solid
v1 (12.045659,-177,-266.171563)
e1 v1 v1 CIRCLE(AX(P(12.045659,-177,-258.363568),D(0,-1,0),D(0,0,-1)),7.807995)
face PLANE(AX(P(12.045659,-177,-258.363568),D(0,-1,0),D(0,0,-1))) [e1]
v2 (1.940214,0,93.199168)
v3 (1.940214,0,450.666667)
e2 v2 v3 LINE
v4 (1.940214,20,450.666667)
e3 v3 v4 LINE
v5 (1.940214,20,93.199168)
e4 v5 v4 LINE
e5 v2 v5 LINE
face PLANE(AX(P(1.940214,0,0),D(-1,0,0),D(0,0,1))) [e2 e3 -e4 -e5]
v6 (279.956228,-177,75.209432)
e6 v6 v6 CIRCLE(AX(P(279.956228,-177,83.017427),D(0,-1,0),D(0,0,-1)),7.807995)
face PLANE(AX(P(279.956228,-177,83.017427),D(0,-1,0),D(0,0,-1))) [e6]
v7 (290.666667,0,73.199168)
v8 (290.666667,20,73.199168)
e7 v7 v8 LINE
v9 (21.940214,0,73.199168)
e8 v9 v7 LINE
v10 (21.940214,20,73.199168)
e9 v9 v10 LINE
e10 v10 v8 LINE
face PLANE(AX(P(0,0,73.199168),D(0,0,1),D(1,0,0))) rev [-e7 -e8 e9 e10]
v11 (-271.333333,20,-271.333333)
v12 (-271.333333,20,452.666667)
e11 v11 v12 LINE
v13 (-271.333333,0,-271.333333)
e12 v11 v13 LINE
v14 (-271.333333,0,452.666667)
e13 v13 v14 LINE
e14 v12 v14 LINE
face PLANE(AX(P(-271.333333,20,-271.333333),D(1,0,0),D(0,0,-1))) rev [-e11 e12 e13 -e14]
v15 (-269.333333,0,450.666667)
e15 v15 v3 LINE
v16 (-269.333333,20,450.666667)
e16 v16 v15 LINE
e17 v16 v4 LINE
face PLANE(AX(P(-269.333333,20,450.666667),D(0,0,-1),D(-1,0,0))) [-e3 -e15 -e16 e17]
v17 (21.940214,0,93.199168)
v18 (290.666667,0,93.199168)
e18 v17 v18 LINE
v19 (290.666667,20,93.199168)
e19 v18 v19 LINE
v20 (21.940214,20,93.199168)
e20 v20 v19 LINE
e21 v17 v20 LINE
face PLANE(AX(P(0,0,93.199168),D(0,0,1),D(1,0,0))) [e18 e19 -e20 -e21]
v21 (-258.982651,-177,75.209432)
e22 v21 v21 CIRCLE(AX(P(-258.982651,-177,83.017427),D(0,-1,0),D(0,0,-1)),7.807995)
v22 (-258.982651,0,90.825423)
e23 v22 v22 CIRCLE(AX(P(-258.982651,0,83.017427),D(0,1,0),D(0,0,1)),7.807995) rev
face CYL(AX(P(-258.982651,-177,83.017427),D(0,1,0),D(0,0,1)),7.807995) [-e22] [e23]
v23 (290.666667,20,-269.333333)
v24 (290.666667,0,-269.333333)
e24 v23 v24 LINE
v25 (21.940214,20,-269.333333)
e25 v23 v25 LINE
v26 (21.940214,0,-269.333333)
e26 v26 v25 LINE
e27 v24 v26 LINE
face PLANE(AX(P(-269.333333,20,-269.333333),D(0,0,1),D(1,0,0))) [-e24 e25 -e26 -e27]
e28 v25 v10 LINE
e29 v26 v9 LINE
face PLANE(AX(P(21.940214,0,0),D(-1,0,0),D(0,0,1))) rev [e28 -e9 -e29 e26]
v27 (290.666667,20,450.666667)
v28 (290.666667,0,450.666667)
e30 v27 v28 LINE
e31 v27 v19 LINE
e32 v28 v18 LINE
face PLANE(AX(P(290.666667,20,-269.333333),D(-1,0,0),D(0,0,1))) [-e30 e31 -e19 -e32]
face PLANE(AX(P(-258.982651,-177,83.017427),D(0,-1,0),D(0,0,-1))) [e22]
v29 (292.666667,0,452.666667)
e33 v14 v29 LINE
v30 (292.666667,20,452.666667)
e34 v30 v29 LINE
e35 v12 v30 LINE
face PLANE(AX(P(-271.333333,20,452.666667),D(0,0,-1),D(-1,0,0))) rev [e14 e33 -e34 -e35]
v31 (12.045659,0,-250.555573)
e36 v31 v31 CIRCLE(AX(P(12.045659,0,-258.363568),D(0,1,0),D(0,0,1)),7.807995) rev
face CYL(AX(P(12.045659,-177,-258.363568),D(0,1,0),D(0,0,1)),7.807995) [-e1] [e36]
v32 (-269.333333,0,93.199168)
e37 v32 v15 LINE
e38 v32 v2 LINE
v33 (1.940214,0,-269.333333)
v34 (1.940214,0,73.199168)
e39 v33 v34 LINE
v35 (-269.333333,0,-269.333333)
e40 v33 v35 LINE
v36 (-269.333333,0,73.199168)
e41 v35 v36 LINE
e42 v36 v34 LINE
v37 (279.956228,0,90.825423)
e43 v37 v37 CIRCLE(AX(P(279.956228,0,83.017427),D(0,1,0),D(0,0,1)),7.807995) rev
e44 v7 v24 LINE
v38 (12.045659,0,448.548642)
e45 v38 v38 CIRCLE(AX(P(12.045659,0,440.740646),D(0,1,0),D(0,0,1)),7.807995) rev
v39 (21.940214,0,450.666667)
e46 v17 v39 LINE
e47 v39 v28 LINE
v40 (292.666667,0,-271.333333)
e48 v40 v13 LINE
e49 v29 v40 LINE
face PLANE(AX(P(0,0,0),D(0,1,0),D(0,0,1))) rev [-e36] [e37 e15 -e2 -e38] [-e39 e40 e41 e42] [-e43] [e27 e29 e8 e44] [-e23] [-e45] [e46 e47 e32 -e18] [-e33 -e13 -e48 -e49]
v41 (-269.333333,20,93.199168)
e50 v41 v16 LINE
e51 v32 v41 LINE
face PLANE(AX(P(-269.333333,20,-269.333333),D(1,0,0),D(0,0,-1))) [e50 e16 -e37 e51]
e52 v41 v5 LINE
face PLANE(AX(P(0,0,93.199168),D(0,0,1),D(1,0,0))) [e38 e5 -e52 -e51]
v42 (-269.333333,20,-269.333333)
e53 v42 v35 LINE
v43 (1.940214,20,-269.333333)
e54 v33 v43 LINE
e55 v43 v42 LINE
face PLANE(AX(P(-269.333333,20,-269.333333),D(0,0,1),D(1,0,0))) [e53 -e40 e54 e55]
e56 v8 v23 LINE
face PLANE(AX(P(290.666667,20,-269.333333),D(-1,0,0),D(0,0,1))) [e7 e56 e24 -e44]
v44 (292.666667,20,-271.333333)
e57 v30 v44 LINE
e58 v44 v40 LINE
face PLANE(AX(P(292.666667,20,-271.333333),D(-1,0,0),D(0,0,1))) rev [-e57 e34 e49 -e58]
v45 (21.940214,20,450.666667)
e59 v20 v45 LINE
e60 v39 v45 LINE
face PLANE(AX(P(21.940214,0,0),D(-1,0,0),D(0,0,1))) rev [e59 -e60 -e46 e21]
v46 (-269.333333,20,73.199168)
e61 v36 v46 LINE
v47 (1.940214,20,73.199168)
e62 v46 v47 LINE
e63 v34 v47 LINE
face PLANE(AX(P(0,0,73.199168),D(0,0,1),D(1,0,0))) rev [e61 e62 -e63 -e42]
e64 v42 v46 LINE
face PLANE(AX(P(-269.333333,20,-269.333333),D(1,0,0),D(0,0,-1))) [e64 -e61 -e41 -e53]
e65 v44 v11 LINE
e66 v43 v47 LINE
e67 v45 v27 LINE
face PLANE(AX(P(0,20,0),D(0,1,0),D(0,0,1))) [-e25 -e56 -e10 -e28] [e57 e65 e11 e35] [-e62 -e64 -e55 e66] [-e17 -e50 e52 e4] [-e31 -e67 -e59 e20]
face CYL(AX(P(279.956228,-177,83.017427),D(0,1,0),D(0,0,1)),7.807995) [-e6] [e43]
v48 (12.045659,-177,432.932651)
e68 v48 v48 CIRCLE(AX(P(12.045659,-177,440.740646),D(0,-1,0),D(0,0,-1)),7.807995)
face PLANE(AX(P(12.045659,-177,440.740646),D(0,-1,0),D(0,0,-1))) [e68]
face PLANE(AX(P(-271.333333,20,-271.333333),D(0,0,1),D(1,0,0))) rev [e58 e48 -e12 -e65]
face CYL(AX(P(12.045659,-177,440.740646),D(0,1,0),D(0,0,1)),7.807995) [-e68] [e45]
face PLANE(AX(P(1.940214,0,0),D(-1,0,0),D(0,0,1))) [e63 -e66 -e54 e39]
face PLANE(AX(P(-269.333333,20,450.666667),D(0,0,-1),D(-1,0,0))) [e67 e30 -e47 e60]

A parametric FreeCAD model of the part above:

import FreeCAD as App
import Part
import Sketcher
from FreeCAD import Vector
Q = App.Units.Quantity

doc = App.newDocument("Part")
params = doc.addObject("Spreadsheet::Sheet", "Params")
for row, (alias, value) in enumerate([
    ("sketch1_width", "564 mm"),
    ("sketch1_width2", "560 mm"),
    ("sketch1_height", "724 mm"),
    ("sketch1_height2", "720 mm"),
    ("pad1_length", "20 mm"),
    ("sketch2_width", "20 mm"),
    ("pad2_length", "20 mm"),
    ("pad3_length", "177 mm"),
], start=1):
    params.set(f"A{row}", alias)
    params.set(f"B{row}", "=" + value)
    params.setAlias(f"B{row}", alias)

body = doc.addObject("PartDesign::Body", "Body")

# Sketch on XZ plane
sketch1 = body.newObject("Sketcher::SketchObject", "Sketch")
sketch1.AttachmentSupport = (doc.getObject("XZ_Plane"), [""])
sketch1.MapMode = "FlatFace"
sketch1.addGeometry(Part.LineSegment(Vector(-271, -271, 0), Vector(-271, 453, 0)), False)
sketch1.addGeometry(Part.LineSegment(Vector(-271, 453, 0), Vector(293, 453, 0)), False)
sketch1.addGeometry(Part.LineSegment(Vector(293, 453, 0), Vector(293, -271, 0)), False)
sketch1.addGeometry(Part.LineSegment(Vector(293, -271, 0), Vector(-271, -271, 0)), False)
sketch1.addGeometry(Part.LineSegment(Vector(291, 451, 0), Vector(-269, 451, 0)), False)
sketch1.addGeometry(Part.LineSegment(Vector(-269, 451, 0), Vector(-269, -269, 0)), False)
sketch1.addGeometry(Part.LineSegment(Vector(-269, -269, 0), Vector(291, -269, 0)), False)
sketch1.addGeometry(Part.LineSegment(Vector(291, -269, 0), Vector(291, 451, 0)), False)
sketch1.addConstraint(Sketcher.Constraint("Coincident", 0, 2, 1, 1))
sketch1.addConstraint(Sketcher.Constraint("Coincident", 1, 2, 2, 1))
sketch1.addConstraint(Sketcher.Constraint("Coincident", 2, 2, 3, 1))
sketch1.addConstraint(Sketcher.Constraint("Coincident", 3, 2, 0, 1))
sketch1.addConstraint(Sketcher.Constraint("Coincident", 4, 2, 5, 1))
sketch1.addConstraint(Sketcher.Constraint("Coincident", 5, 2, 6, 1))
sketch1.addConstraint(Sketcher.Constraint("Coincident", 6, 2, 7, 1))
sketch1.addConstraint(Sketcher.Constraint("Coincident", 7, 2, 4, 1))
sketch1.addConstraint(Sketcher.Constraint("Vertical", 0))
sketch1.addConstraint(Sketcher.Constraint("Horizontal", 1))
sketch1.addConstraint(Sketcher.Constraint("Vertical", 2))
sketch1.addConstraint(Sketcher.Constraint("Horizontal", 3))
sketch1.addConstraint(Sketcher.Constraint("Horizontal", 4))
sketch1.addConstraint(Sketcher.Constraint("Vertical", 5))
sketch1.addConstraint(Sketcher.Constraint("Horizontal", 6))
sketch1.addConstraint(Sketcher.Constraint("Vertical", 7))
sketch1.addConstraint(Sketcher.Constraint("DistanceX", 1, 1, 1, 2, Q("564 mm")))
sketch1.addConstraint(Sketcher.Constraint("DistanceX", 4, 2, 4, 1, Q("560 mm")))
sketch1.addConstraint(Sketcher.Constraint("DistanceY", 0, 1, 0, 2, Q("724 mm")))
sketch1.addConstraint(Sketcher.Constraint("DistanceY", 5, 2, 5, 1, Q("720 mm")))
sketch1.addConstraint(Sketcher.Constraint("DistanceX", 0, 2, 4, 2, Q("2 mm")))
sketch1.addConstraint(Sketcher.Constraint("DistanceY", 4, 2, 0, 2, Q("2 mm")))
sketch1.addConstraint(Sketcher.Constraint("DistanceX", 0, 2, -1, 1, Q("271.333333 mm")))
sketch1.addConstraint(Sketcher.Constraint("DistanceY", -1, 1, 0, 2, Q("452.666667 mm")))
sketch1.setExpression("Constraints[16]", "Params.sketch1_width")
sketch1.setExpression("Constraints[17]", "Params.sketch1_width2")
sketch1.setExpression("Constraints[18]", "Params.sketch1_height")
sketch1.setExpression("Constraints[19]", "Params.sketch1_height2")
pad1 = body.newObject("PartDesign::Pad", "Pad")
pad1.Profile = sketch1
pad1.setExpression("Length", "Params.pad1_length")
pad1.Reversed = True

# Sketch on XZ plane
sketch2 = body.newObject("Sketcher::SketchObject", "Sketch001")
sketch2.AttachmentSupport = (doc.getObject("XZ_Plane"), [""])
sketch2.MapMode = "FlatFace"
sketch2.AttachmentOffset = App.Placement(Vector(0, 0, -20), App.Rotation())
sketch2.addGeometry(Part.LineSegment(Vector(2, 93, 0), Vector(2, 451, 0)), False)
sketch2.addGeometry(Part.LineSegment(Vector(2, 451, 0), Vector(22, 451, 0)), False)
sketch2.addGeometry(Part.LineSegment(Vector(22, 451, 0), Vector(22, 93, 0)), False)
sketch2.addGeometry(Part.LineSegment(Vector(22, 93, 0), Vector(291, 93, 0)), False)
sketch2.addGeometry(Part.LineSegment(Vector(291, 93, 0), Vector(291, 73, 0)), False)
sketch2.addGeometry(Part.LineSegment(Vector(291, 73, 0), Vector(22, 73, 0)), False)
sketch2.addGeometry(Part.LineSegment(Vector(22, 73, 0), Vector(22, -269, 0)), False)
sketch2.addGeometry(Part.LineSegment(Vector(22, -269, 0), Vector(2, -269, 0)), False)
sketch2.addGeometry(Part.LineSegment(Vector(2, -269, 0), Vector(2, 73, 0)), False)
sketch2.addGeometry(Part.LineSegment(Vector(2, 73, 0), Vector(-269, 73, 0)), False)
sketch2.addGeometry(Part.LineSegment(Vector(-269, 73, 0), Vector(-269, 93, 0)), False)
sketch2.addGeometry(Part.LineSegment(Vector(-269, 93, 0), Vector(2, 93, 0)), False)
sketch2.addConstraint(Sketcher.Constraint("Coincident", 0, 2, 1, 1))
sketch2.addConstraint(Sketcher.Constraint("Coincident", 1, 2, 2, 1))
sketch2.addConstraint(Sketcher.Constraint("Coincident", 2, 2, 3, 1))
sketch2.addConstraint(Sketcher.Constraint("Coincident", 3, 2, 4, 1))
sketch2.addConstraint(Sketcher.Constraint("Coincident", 4, 2, 5, 1))
sketch2.addConstraint(Sketcher.Constraint("Coincident", 5, 2, 6, 1))
sketch2.addConstraint(Sketcher.Constraint("Coincident", 6, 2, 7, 1))
sketch2.addConstraint(Sketcher.Constraint("Coincident", 7, 2, 8, 1))
sketch2.addConstraint(Sketcher.Constraint("Coincident", 8, 2, 9, 1))
sketch2.addConstraint(Sketcher.Constraint("Coincident", 9, 2, 10, 1))
sketch2.addConstraint(Sketcher.Constraint("Coincident", 10, 2, 11, 1))
sketch2.addConstraint(Sketcher.Constraint("Coincident", 11, 2, 0, 1))
sketch2.addConstraint(Sketcher.Constraint("Vertical", 0))
sketch2.addConstraint(Sketcher.Constraint("Horizontal", 1))
sketch2.addConstraint(Sketcher.Constraint("Vertical", 2))
sketch2.addConstraint(Sketcher.Constraint("Horizontal", 3))
sketch2.addConstraint(Sketcher.Constraint("Vertical", 4))
sketch2.addConstraint(Sketcher.Constraint("Horizontal", 5))
sketch2.addConstraint(Sketcher.Constraint("Vertical", 6))
sketch2.addConstraint(Sketcher.Constraint("Horizontal", 7))
sketch2.addConstraint(Sketcher.Constraint("Vertical", 8))
sketch2.addConstraint(Sketcher.Constraint("Horizontal", 9))
sketch2.addConstraint(Sketcher.Constraint("Vertical", 10))
sketch2.addConstraint(Sketcher.Constraint("Horizontal", 11))
sketch2.addConstraint(Sketcher.Constraint("Horizontal", 5, 2, 8, 2))
sketch2.addConstraint(Sketcher.Constraint("Horizontal", 3, 2, 10, 2))
sketch2.addConstraint(Sketcher.Constraint("Vertical", 2, 2, 5, 2))
sketch2.addConstraint(Sketcher.Constraint("Vertical", 0, 2, 7, 2))
sketch2.addConstraint(Sketcher.Constraint("Equal", 7, 4))
sketch2.addConstraint(Sketcher.Constraint("DistanceX", 1, 1, 1, 2, Q("20 mm")))
sketch2.addConstraint(Sketcher.Constraint("DistanceY", 6, 2, 1, 2, Q("720 mm")))
sketch2.addConstraint(Sketcher.Constraint("DistanceY", 0, 1, 0, 2, Q("357.467498 mm")))
sketch2.addConstraint(Sketcher.Constraint("DistanceX", 3, 1, 3, 2, Q("268.726453 mm")))
sketch2.addConstraint(Sketcher.Constraint("DistanceX", 9, 2, 9, 1, Q("271.273547 mm")))
sketch2.addConstraint(Sketcher.Constraint("DistanceY", -1, 1, 2, 2, Q("93.199168 mm")))
sketch2.addConstraint(Sketcher.Constraint("DistanceX", -1, 1, 0, 2, Q("1.940214 mm")))
sketch2.setExpression("Constraints[29]", "Params.sketch2_width")
pad2 = body.newObject("PartDesign::Pad", "Pad001")
pad2.Profile = sketch2
pad2.setExpression("Length", "Params.pad2_length")

# Sketch on XZ plane
sketch3 = body.newObject("Sketcher::SketchObject", "Sketch002")
sketch3.AttachmentSupport = (doc.getObject("XZ_Plane"), [""])
sketch3.MapMode = "FlatFace"
sketch3.addGeometry(Part.Circle(Vector(280, 83, 0), Vector(0, 0, 1), 8), False)
sketch3.addGeometry(Part.Circle(Vector(12, 441, 0), Vector(0, 0, 1), 8), False)
sketch3.addGeometry(Part.Circle(Vector(12, -258, 0), Vector(0, 0, 1), 8), False)
sketch3.addGeometry(Part.Circle(Vector(-259, 83, 0), Vector(0, 0, 1), 8), False)
sketch3.addConstraint(Sketcher.Constraint("Equal", 0, 1))
sketch3.addConstraint(Sketcher.Constraint("Equal", 1, 2))
sketch3.addConstraint(Sketcher.Constraint("Equal", 2, 3))
sketch3.addConstraint(Sketcher.Constraint("Horizontal", 0, 3, 3, 3))
sketch3.addConstraint(Sketcher.Constraint("Vertical", 1, 3, 2, 3))
sketch3.addConstraint(Sketcher.Constraint("Diameter", 0, Q("15.61599 mm")))
sketch3.addConstraint(Sketcher.Constraint("DistanceX", -1, 1, 1, 3, Q("12.045659 mm")))
sketch3.addConstraint(Sketcher.Constraint("DistanceX", 3, 3, -1, 1, Q("258.982651 mm")))
sketch3.addConstraint(Sketcher.Constraint("DistanceX", 1, 3, 0, 3, Q("267.910568 mm")))
sketch3.addConstraint(Sketcher.Constraint("DistanceY", 0, 3, 1, 3, Q("357.723219 mm")))
sketch3.addConstraint(Sketcher.Constraint("DistanceY", -1, 1, 0, 3, Q("83.017427 mm")))
sketch3.addConstraint(Sketcher.Constraint("DistanceY", 2, 3, -1, 1, Q("258.363568 mm")))
pad3 = body.newObject("PartDesign::Pad", "Pad002")
pad3.Profile = sketch3
pad3.setExpression("Length", "Params.pad3_length")

doc.recompute()
